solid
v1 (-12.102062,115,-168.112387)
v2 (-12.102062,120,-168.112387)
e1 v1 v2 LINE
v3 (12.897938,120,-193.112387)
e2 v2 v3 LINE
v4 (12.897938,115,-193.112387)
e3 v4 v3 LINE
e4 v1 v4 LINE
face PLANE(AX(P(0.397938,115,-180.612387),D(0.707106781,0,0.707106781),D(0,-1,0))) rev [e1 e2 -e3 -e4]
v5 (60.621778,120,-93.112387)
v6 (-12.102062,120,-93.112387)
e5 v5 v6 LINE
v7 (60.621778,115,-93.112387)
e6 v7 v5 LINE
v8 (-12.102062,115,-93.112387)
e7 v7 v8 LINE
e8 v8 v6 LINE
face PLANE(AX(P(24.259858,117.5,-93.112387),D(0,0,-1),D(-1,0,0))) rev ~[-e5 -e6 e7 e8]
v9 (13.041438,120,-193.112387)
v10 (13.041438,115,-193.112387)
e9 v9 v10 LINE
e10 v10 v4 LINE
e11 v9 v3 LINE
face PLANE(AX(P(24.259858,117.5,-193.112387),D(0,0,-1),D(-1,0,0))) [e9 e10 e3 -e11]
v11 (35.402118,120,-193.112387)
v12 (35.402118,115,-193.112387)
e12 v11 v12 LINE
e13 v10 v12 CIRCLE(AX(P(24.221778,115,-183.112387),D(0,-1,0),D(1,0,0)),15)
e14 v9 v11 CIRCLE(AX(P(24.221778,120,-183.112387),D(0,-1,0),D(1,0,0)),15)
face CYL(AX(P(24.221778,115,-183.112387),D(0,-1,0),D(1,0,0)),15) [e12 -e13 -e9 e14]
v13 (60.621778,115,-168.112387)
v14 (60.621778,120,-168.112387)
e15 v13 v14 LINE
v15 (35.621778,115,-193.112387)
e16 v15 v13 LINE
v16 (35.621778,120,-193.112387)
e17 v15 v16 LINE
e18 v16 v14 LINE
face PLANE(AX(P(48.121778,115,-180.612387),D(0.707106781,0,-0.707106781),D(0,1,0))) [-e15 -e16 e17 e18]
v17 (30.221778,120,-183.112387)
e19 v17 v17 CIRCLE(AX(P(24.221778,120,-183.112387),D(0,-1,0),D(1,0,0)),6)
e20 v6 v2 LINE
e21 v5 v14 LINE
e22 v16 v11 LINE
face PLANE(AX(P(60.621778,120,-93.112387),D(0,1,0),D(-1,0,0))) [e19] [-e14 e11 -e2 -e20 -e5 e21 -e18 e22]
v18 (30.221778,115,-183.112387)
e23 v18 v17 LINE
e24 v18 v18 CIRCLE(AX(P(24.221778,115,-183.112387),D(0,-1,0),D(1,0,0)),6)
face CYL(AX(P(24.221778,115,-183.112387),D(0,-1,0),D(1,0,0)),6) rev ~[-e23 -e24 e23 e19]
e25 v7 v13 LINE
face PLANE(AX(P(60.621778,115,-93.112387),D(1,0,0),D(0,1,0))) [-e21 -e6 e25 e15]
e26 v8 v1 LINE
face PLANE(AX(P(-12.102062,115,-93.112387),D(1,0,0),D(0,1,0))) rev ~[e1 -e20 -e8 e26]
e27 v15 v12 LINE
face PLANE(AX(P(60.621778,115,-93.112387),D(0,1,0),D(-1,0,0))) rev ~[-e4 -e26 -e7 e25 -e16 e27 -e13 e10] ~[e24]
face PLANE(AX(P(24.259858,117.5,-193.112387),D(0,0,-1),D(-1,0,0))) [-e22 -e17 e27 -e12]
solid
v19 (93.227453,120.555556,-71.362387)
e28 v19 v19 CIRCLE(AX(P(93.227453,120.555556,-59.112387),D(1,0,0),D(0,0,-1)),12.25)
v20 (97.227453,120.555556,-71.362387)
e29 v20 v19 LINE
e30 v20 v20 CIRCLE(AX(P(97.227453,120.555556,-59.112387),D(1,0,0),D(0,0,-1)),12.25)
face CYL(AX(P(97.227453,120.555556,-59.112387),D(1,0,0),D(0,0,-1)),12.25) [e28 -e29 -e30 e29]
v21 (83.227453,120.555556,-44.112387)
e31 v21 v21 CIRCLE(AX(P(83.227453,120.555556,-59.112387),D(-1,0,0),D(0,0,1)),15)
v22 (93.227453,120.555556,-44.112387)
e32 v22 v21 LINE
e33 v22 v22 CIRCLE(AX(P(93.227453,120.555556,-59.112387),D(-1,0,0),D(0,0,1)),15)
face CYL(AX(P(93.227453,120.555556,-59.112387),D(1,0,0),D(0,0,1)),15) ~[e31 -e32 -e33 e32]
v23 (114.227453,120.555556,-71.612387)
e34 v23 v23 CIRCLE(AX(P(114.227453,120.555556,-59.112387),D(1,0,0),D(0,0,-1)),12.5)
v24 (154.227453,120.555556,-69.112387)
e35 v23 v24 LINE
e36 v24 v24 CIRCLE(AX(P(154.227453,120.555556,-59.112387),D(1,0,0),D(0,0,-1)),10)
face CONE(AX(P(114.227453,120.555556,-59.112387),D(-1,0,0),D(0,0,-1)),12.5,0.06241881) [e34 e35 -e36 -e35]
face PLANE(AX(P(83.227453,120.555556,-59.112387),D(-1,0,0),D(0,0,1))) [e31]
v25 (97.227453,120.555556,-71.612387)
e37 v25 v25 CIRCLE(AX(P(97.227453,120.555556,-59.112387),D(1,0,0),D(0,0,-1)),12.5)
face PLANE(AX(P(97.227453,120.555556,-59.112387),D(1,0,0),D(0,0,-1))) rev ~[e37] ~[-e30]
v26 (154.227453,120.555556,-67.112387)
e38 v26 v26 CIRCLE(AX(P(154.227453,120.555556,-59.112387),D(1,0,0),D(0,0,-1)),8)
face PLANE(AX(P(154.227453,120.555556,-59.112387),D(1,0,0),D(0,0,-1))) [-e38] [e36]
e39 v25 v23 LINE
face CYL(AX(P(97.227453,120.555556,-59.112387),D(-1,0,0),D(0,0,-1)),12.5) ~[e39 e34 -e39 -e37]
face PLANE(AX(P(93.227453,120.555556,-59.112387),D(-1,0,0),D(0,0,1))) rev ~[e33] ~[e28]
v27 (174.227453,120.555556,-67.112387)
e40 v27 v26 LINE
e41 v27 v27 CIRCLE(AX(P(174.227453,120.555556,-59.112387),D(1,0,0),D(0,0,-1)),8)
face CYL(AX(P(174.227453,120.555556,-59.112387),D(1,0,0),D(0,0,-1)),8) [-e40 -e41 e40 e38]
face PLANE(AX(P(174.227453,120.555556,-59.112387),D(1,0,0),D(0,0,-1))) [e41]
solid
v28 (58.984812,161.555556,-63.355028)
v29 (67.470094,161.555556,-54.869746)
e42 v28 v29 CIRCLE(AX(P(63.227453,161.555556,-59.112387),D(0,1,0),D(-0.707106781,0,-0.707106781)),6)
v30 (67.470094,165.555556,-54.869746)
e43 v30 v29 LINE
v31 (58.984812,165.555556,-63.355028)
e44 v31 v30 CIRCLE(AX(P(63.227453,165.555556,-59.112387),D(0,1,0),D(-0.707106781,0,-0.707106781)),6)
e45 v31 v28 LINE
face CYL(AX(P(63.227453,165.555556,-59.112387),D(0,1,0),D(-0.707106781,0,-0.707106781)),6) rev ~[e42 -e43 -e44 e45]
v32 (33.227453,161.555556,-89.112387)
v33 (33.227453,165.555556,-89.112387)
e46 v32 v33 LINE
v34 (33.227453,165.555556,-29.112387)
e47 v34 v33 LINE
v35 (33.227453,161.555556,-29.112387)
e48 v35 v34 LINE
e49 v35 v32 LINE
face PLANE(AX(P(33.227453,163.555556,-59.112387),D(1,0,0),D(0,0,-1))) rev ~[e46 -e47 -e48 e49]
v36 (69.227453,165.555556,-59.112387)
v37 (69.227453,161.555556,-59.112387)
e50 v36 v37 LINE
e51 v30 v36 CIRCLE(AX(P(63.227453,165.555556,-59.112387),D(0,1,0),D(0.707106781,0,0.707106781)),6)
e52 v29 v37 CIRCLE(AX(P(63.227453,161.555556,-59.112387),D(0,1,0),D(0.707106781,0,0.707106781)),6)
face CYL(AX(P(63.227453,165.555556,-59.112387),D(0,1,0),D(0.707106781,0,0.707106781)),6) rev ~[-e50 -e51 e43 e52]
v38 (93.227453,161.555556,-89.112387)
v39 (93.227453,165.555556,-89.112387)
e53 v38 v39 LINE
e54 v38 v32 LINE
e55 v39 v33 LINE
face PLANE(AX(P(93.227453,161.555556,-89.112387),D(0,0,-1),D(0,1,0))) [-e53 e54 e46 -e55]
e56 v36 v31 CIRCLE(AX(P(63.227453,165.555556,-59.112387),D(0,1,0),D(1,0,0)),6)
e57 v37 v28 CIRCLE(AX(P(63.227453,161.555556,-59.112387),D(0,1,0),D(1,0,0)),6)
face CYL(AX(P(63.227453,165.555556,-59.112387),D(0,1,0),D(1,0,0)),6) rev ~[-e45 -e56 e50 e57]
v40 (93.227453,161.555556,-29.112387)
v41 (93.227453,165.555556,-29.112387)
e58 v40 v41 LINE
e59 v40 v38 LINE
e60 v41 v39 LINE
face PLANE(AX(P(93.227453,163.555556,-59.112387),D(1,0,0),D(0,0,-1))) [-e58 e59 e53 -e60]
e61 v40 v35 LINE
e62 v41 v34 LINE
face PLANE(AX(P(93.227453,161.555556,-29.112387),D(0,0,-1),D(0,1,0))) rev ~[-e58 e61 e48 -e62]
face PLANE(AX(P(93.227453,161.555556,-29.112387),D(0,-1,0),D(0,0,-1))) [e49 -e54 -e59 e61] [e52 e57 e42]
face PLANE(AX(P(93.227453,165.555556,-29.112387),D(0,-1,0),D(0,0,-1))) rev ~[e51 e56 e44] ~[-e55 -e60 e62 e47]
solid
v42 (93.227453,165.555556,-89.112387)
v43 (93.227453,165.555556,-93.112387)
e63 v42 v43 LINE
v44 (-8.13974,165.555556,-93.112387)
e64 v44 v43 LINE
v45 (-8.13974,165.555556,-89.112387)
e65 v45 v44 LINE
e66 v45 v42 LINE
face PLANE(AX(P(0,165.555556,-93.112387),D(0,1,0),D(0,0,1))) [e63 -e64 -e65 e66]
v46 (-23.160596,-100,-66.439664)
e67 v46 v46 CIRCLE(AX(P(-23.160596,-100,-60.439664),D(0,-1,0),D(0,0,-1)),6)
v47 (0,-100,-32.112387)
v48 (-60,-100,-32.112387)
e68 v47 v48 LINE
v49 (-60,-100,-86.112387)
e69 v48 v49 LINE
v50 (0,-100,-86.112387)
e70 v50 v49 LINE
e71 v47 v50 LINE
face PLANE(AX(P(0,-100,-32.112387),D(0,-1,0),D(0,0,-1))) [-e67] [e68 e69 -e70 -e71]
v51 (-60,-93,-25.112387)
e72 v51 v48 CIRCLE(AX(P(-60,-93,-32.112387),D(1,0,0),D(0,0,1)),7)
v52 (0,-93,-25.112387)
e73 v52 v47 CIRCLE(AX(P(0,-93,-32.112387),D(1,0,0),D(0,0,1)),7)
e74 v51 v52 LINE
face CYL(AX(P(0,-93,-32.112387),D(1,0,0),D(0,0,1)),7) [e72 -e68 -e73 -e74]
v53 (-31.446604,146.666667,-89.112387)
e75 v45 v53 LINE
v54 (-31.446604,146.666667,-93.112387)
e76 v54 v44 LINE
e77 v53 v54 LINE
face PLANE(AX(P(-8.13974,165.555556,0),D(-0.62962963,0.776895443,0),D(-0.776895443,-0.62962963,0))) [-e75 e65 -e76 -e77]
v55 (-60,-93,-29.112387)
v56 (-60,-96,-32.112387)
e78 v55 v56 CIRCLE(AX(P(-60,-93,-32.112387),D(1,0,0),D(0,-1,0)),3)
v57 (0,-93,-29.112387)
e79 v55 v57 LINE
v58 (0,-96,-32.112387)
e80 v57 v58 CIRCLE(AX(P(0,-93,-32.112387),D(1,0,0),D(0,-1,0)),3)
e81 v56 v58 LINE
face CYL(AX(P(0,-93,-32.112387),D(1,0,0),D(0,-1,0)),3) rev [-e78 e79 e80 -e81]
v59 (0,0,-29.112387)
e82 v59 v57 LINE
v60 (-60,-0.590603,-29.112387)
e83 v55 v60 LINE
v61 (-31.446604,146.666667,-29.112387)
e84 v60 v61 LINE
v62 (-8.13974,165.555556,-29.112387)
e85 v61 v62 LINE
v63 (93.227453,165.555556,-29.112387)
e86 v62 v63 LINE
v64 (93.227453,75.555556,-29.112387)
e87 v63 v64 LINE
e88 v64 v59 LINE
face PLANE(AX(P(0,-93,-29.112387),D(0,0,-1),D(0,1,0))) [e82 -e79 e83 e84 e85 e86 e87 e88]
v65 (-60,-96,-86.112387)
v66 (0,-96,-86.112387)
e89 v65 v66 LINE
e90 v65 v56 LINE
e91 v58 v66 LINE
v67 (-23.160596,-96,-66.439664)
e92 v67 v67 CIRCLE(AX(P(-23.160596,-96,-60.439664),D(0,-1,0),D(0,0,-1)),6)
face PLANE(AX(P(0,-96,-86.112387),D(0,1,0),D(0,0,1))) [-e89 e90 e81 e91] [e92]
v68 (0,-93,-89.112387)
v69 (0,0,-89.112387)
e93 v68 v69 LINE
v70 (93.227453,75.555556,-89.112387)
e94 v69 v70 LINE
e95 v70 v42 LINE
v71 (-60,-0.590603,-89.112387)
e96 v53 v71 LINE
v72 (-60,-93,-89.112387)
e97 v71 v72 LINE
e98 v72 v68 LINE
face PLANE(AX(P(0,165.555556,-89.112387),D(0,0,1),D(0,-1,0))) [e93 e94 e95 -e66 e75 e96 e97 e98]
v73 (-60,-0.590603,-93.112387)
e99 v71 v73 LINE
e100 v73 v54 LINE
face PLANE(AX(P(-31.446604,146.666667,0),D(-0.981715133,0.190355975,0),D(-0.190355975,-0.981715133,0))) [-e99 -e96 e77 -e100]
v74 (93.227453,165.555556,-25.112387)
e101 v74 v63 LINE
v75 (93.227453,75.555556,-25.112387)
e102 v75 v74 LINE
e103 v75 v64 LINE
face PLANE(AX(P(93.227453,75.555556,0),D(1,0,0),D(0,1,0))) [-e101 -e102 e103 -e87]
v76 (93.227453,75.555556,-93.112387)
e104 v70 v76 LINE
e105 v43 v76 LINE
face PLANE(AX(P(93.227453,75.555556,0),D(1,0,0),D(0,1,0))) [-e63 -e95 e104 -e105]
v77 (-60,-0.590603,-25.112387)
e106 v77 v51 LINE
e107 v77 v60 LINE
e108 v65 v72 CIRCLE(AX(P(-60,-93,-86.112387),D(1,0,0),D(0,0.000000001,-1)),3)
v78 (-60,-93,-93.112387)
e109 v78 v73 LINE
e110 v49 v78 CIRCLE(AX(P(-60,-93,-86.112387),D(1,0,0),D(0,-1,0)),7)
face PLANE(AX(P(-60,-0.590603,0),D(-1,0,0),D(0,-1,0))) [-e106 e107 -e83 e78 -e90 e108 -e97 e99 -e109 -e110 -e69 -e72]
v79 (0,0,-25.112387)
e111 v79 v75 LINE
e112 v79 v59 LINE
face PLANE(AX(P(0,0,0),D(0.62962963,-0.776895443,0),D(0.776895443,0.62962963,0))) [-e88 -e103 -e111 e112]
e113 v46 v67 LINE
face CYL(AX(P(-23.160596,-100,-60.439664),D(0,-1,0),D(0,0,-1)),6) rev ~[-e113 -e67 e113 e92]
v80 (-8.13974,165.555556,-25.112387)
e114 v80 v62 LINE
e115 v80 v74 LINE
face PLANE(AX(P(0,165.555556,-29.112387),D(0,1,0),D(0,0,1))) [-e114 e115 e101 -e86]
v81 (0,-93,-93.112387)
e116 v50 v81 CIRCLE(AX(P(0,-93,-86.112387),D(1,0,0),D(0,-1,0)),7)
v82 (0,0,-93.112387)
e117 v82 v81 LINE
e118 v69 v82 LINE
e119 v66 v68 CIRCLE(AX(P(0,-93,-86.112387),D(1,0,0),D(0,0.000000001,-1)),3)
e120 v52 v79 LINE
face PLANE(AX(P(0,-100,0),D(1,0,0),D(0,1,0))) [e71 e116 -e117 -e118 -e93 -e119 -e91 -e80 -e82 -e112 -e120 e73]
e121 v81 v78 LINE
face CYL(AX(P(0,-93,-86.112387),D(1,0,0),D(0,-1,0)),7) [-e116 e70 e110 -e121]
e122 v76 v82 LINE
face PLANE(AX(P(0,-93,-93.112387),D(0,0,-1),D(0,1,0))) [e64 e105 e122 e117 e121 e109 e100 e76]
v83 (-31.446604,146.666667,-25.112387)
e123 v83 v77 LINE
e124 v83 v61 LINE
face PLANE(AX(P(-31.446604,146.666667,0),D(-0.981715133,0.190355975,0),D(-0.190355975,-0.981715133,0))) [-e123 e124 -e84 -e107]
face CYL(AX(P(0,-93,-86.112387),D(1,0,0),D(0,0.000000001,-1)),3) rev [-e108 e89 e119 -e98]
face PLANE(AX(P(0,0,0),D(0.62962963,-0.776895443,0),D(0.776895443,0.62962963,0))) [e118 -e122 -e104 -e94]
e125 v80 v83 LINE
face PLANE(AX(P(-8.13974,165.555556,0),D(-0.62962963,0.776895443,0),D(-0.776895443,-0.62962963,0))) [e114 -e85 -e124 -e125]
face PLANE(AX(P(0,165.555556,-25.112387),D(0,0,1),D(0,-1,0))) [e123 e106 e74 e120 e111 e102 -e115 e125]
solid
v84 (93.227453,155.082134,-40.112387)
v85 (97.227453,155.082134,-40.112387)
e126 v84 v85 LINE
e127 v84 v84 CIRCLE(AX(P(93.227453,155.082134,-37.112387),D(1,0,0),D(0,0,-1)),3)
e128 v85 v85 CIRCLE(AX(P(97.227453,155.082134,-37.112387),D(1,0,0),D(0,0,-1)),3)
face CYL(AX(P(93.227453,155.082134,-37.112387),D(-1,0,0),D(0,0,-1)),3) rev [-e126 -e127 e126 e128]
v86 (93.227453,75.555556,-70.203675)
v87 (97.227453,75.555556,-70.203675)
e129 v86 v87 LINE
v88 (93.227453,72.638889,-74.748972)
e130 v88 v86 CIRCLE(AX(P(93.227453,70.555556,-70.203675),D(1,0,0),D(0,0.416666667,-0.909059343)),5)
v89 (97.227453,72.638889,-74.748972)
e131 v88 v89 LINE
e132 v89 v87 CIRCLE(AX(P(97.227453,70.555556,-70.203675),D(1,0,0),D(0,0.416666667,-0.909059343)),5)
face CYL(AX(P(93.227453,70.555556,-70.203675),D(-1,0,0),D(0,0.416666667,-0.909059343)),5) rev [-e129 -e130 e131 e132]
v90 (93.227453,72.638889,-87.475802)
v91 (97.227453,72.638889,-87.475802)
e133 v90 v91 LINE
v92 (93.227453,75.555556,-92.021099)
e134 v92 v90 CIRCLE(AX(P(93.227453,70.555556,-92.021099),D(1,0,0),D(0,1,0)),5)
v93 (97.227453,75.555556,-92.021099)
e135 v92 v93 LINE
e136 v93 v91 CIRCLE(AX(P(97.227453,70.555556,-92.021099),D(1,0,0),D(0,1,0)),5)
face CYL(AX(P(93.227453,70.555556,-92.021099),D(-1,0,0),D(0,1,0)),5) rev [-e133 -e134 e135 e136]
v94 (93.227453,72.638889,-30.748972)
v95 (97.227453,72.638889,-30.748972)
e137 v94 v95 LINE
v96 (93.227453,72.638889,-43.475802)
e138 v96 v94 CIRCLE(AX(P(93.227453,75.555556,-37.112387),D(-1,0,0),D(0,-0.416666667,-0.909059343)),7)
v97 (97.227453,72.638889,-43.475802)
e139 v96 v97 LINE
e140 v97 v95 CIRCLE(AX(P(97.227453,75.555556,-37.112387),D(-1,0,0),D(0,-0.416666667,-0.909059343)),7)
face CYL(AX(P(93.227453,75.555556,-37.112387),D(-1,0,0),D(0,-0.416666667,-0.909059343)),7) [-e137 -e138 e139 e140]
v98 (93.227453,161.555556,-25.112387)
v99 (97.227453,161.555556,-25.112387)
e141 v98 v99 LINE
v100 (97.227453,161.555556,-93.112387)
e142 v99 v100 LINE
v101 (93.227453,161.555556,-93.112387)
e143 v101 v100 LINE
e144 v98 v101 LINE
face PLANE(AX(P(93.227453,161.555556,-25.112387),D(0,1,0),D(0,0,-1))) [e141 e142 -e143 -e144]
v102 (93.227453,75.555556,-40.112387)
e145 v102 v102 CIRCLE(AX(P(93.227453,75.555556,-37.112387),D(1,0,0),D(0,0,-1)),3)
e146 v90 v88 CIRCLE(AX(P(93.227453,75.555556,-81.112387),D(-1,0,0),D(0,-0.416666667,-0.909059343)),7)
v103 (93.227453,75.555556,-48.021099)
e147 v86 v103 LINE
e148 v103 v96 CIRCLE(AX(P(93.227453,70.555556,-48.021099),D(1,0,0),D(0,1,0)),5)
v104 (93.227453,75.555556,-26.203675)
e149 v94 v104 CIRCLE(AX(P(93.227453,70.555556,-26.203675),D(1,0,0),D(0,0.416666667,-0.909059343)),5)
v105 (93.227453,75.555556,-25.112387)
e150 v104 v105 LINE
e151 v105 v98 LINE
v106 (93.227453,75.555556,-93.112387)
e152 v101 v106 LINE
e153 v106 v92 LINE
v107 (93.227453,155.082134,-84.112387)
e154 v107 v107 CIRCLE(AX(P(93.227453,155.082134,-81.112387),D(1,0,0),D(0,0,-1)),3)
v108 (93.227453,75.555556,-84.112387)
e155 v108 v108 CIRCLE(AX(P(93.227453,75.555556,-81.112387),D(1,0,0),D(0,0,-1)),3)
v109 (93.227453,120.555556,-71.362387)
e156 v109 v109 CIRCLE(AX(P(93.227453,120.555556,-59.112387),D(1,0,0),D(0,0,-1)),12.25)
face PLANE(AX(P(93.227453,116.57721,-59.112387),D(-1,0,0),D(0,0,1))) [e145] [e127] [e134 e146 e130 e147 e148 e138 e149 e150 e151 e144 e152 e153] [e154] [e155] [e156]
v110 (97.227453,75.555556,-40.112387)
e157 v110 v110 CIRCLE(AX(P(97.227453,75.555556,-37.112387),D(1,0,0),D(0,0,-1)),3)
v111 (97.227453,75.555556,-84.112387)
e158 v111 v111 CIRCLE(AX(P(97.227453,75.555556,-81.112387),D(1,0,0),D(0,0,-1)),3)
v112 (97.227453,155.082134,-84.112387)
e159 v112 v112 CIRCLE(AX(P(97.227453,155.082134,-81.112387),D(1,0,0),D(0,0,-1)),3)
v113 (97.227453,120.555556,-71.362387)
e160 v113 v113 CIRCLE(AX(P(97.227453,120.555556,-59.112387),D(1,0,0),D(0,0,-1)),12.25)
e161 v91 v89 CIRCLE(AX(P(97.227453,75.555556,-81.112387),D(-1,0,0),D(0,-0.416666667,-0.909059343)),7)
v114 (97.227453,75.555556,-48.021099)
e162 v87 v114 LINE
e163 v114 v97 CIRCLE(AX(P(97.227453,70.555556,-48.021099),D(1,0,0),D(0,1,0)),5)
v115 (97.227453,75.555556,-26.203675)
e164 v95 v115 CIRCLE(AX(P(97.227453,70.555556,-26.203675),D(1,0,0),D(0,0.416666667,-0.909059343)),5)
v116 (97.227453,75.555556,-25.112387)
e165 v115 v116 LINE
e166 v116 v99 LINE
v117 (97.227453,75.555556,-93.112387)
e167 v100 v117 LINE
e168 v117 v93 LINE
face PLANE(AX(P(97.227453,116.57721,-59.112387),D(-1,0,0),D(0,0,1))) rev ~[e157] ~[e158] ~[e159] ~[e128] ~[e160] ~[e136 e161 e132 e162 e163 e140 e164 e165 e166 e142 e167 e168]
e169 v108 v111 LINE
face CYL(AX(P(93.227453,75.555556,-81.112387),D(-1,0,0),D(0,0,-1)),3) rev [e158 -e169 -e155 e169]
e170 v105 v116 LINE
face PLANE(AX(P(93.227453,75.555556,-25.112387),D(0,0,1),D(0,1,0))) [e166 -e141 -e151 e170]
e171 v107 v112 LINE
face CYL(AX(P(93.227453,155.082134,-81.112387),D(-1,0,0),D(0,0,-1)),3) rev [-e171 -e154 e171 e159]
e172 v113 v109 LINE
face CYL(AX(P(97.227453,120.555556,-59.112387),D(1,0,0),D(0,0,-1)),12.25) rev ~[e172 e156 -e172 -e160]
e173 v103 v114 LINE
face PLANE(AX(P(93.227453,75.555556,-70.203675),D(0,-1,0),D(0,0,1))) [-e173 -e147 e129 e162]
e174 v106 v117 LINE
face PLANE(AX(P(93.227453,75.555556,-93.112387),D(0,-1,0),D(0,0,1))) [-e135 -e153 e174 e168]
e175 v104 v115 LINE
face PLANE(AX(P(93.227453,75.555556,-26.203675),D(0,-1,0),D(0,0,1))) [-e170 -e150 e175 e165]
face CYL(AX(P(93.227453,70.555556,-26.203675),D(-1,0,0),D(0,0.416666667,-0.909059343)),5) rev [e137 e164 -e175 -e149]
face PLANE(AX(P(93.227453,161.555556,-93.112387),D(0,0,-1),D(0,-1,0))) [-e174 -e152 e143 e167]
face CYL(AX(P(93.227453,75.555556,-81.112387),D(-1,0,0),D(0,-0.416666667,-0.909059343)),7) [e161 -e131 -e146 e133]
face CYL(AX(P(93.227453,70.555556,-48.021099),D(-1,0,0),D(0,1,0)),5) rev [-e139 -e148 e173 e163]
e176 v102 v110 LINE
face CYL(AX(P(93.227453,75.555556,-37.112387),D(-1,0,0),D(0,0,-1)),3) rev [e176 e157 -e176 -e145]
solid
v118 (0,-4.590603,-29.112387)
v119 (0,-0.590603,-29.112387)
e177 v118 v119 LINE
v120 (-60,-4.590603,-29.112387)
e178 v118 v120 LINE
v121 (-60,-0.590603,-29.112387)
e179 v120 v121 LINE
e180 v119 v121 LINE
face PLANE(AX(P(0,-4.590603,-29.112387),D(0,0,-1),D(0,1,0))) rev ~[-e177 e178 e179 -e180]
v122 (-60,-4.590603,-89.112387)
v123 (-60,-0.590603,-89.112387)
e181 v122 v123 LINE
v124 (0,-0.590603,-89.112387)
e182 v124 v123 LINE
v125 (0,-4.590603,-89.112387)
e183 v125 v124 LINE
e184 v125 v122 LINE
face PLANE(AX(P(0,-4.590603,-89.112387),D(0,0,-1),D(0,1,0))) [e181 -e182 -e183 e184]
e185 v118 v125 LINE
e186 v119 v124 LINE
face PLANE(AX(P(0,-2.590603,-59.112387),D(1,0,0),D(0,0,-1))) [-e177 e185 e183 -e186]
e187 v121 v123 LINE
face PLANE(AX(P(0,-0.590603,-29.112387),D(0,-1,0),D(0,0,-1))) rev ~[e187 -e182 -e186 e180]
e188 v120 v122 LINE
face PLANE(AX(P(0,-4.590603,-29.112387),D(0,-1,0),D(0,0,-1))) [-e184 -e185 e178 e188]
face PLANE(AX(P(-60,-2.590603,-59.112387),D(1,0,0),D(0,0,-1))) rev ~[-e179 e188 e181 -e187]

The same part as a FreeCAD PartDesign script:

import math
import FreeCAD as App
import Part
import Sketcher

V = App.Vector
Q = App.Units.Quantity


def edges_at(feature, points):
    """Names of the edges that pass closest to the given points."""
    edges = feature.Shape.Edges
    near = lambda p: min(range(len(edges)), key=lambda i: edges[i].distToShape(Part.Vertex(*p))[0])
    return sorted({f"Edge{near(p) + 1}" for p in points})


def add_polygon(sketch, points):
    """Adds a closed chain of lines whose ends are joined by coincident constraints."""
    first, n = sketch.GeometryCount, len(points)
    for a, b in zip(points, points[1:] + points[:1]):
        sketch.addGeometry(Part.LineSegment(App.Vector(*a, 0), App.Vector(*b, 0)), False)
    for i in range(n):
        sketch.addConstraint(Sketcher.Constraint("Coincident", first + i, 2, first + (i + 1) % n, 1))

doc = App.newDocument("Part")
body = doc.addObject("PartDesign::Body", "Body")

# Sketch on YZ plane
sketch1 = doc.addObject("Sketcher::SketchObject", "Sketch")
body.addObject(sketch1)
sketch1.AttachmentSupport = (doc.YZ_Plane, [""])
sketch1.MapMode = "FlatFace"
sketch1.addGeometry([
    Part.LineSegment(V(-93, -93.1, 0), V(165.6, -93.1, 0)),  # 0
    Part.LineSegment(V(165.6, -93.1, 0), V(165.6, -89.1, 0)),  # 1
    Part.LineSegment(V(165.6, -89.1, 0), V(-93, -89.1, 0)),  # 2
    Part.ArcOfCircle(Part.Circle(V(-93, -86.1, 0), V(0, 0, 1), 3), math.radians(180), math.radians(270)),  # 3
    Part.LineSegment(V(-96, -86.1, 0), V(-96, -32.1, 0)),  # 4
    Part.ArcOfCircle(Part.Circle(V(-93, -32.1, 0), V(0, 0, 1), 3), math.radians(90), math.radians(180)),  # 5
    Part.LineSegment(V(-93, -29.1, 0), V(165.6, -29.1, 0)),  # 6
    Part.LineSegment(V(165.6, -29.1, 0), V(165.6, -25.1, 0)),  # 7
    Part.LineSegment(V(165.6, -25.1, 0), V(-93, -25.1, 0)),  # 8
    Part.ArcOfCircle(Part.Circle(V(-93, -32.1, 0), V(0, 0, 1), 7), math.radians(90), math.radians(180)),  # 9
    Part.LineSegment(V(-100, -32.1, 0), V(-100, -86.1, 0)),  # 10
    Part.ArcOfCircle(Part.Circle(V(-93, -86.1, 0), V(0, 0, 1), 7), math.radians(180), math.radians(270)),  # 11
], False)
sketch1.addConstraint([
    Sketcher.Constraint("Coincident", 0, 2, 1, 1),
    Sketcher.Constraint("Coincident", 1, 2, 2, 1),
    Sketcher.Constraint("Tangent", 2, 2, 3, 2),
    Sketcher.Constraint("Tangent", 3, 1, 4, 1),
    Sketcher.Constraint("Tangent", 4, 2, 5, 2),
    Sketcher.Constraint("Tangent", 5, 1, 6, 1),
    Sketcher.Constraint("Coincident", 6, 2, 7, 1),
    Sketcher.Constraint("Coincident", 7, 2, 8, 1),
    Sketcher.Constraint("Tangent", 8, 2, 9, 1),
    Sketcher.Constraint("Tangent", 9, 2, 10, 1),
    Sketcher.Constraint("Tangent", 10, 2, 11, 1),
    Sketcher.Constraint("Tangent", 11, 2, 0, 1),
    Sketcher.Constraint("Horizontal", 0),
    Sketcher.Constraint("Vertical", 1),
    Sketcher.Constraint("Horizontal", 2),
    Sketcher.Constraint("Vertical", 4),
    Sketcher.Constraint("Horizontal", 6),
    Sketcher.Constraint("Vertical", 7),
    Sketcher.Constraint("Horizontal", 8),
    Sketcher.Constraint("Vertical", 10),
    Sketcher.Constraint("Coincident", 9, 3, 5, 3),
    Sketcher.Constraint("Coincident", 11, 3, 3, 3),
    Sketcher.Constraint("Equal", 3, 5),
    Sketcher.Constraint("Vertical", 1, 2, 6, 2),
    Sketcher.Constraint("Radius", 3, Q("3 mm")),
    Sketcher.Constraint("Radius", 9, Q("7 mm")),
    Sketcher.Constraint("DistanceY", 4, 1, 4, 2, Q("54 mm")),
    Sketcher.Constraint("DistanceX", 3, 3, -1, 1, Q("93 mm")),
    Sketcher.Constraint("DistanceX", 0, 1, 0, 2, Q("258.555556 mm")),
    Sketcher.Constraint("DistanceY", 3, 3, -1, 1, Q("86.112387 mm")),
])
pad1 = doc.addObject("PartDesign::Pad", "Pad")
body.addObject(pad1)
pad1.Profile = sketch1
pad1.Length = 214
pad1.Midplane = True

# Sketch on XY plane
sketch2 = doc.addObject("Sketcher::SketchObject", "Sketch001")
body.addObject(sketch2)
sketch2.AttachmentSupport = (doc.XY_Plane, [""])
sketch2.MapMode = "FlatFace"
add_polygon(sketch2, [(-190, 12), (-190, -230), (130, -230), (130, -62), (223, 14), (223, 296), (-54, 296), (-150, 218)])  # lines 0-7
add_polygon(sketch2, [(-60, -100), (-60, -1), (-31, 147), (-8, 166), (93, 166), (93, 76), (0, 0), (0, -100)])  # lines 8-15
sketch2.addConstraint([
    Sketcher.Constraint("Vertical", 0),
    Sketcher.Constraint("Horizontal", 1),
    Sketcher.Constraint("Vertical", 2),
    Sketcher.Constraint("Vertical", 4),
    Sketcher.Constraint("Horizontal", 5),
    Sketcher.Constraint("Vertical", 8),
    Sketcher.Constraint("Horizontal", 11),
    Sketcher.Constraint("Vertical", 12),
    Sketcher.Constraint("Vertical", 14),
    Sketcher.Constraint("Horizontal", 15),
    Sketcher.Constraint("Coincident", 13, 2, -1, 1),
    Sketcher.Constraint("Parallel", 3, 6),
    Sketcher.Constraint("Parallel", 7, 9),
    Sketcher.Constraint("Parallel", 6, 10),
    Sketcher.Constraint("Parallel", 10, 13),
    Sketcher.Constraint("Equal", 3, 13),
    Sketcher.Constraint("DistanceX", 1, 1, 1, 2, Q("320 mm")),
    Sketcher.Constraint("DistanceX", 15, 2, 15, 1, Q("60 mm")),
    Sketcher.Constraint("DistanceY", 12, 2, 12, 1, Q("90 mm")),
    Sketcher.Constraint("DistanceY", 14, 2, 14, 1, Q("100 mm")),
    Sketcher.Constraint("Distance", 3, Q("120 mm")),
    Sketcher.Constraint("Distance", 9, Q("150 mm")),
    Sketcher.Constraint("Distance", 10, Q("30 mm")),
    Sketcher.Constraint("DistanceX", 0, 2, -1, 1, Q("190 mm")),
    Sketcher.Constraint("DistanceY", 0, 2, -1, 1, Q("230 mm")),
    Sketcher.Constraint("DistanceY", 10, 2, 5, 2, Q("130 mm")),
    Sketcher.Constraint("DistanceY", 0, 2, 0, 1, Q("241.896699 mm")),
    Sketcher.Constraint("DistanceY", 2, 1, 2, 2, Q("168.024932 mm")),
    Sketcher.Constraint("DistanceX", 5, 2, 5, 1, Q("277.431723 mm")),
    Sketcher.Constraint("DistanceX", 11, 1, 11, 2, Q("101.367194 mm")),
    Sketcher.Constraint("DistanceY", 8, 1, 8, 2, Q("99.409397 mm")),
])
pocket1 = doc.addObject("PartDesign::Pocket", "Pocket")
body.addObject(pocket1)
pocket1.Profile = sketch2
pocket1.Length = 214

# Sketch on XZ plane
sketch3 = doc.addObject("Sketcher::SketchObject", "Sketch002")
body.addObject(sketch3)
sketch3.AttachmentSupport = (doc.XZ_Plane, [""])
sketch3.MapMode = "FlatFace"
sketch3.AttachmentOffset = App.Placement(V(0, 0, 100), App.Rotation())
sketch3.addGeometry(Part.Circle(V(-23, -60, 0), V(0, 0, 1), 6), False)
sketch3.addConstraint([
    Sketcher.Constraint("Diameter", 0, Q("12 mm")),
    Sketcher.Constraint("DistanceX", 0, 3, -1, 1, Q("23.160596 mm")),
    Sketcher.Constraint("DistanceY", 0, 3, -1, 1, Q("60.439664 mm")),
])
pocket2 = doc.addObject("PartDesign::Pocket", "Pocket001")
body.addObject(pocket2)
pocket2.Profile = sketch3
pocket2.Length = 10
body2 = doc.addObject("PartDesign::Body", "Body001")

# Sketch on YZ plane
sketch4 = doc.addObject("Sketcher::SketchObject", "Sketch003")
body2.addObject(sketch4)
sketch4.AttachmentSupport = (doc.getObject("YZ_Plane001"), [""])
sketch4.MapMode = "FlatFace"
add_polygon(sketch4, [(-0.6, -29.1), (-4.6, -29.1), (-4.6, -89.1), (-0.6, -89.1)])  # lines 0-3
sketch4.addConstraint([
    Sketcher.Constraint("Horizontal", 0),
    Sketcher.Constraint("Vertical", 1),
    Sketcher.Constraint("Horizontal", 2),
    Sketcher.Constraint("Vertical", 3),
    Sketcher.Constraint("DistanceX", 0, 2, 0, 1, Q("4 mm")),
    Sketcher.Constraint("DistanceY", 1, 2, 1, 1, Q("60 mm")),
    Sketcher.Constraint("DistanceX", 0, 2, -1, 1, Q("4.590603 mm")),
    Sketcher.Constraint("DistanceY", 0, 2, -1, 1, Q("29.112387 mm")),
])
pad2 = doc.addObject("PartDesign::Pad", "Pad001")
body2.addObject(pad2)
pad2.Profile = sketch4
pad2.Length = 60
pad2.Reversed = True
body3 = doc.addObject("PartDesign::Body", "Body002")

# Sketch on YZ plane
sketch5 = doc.addObject("Sketcher::SketchObject", "Sketch004")
body3.addObject(sketch5)
sketch5.AttachmentSupport = (doc.getObject("YZ_Plane002"), [""])
sketch5.MapMode = "FlatFace"
sketch5.AttachmentOffset = App.Placement(V(0, 0, 93.227453), App.Rotation())
add_polygon(sketch5, [(165.6, -29.1), (161.6, -29.1), (161.6, -89.1), (165.6, -89.1)])  # lines 0-3
sketch5.addConstraint([
    Sketcher.Constraint("Horizontal", 0),
    Sketcher.Constraint("Vertical", 1),
    Sketcher.Constraint("Horizontal", 2),
    Sketcher.Constraint("Vertical", 3),
    Sketcher.Constraint("DistanceX", 0, 2, 0, 1, Q("4 mm")),
    Sketcher.Constraint("DistanceY", 1, 2, 1, 1, Q("60 mm")),
    Sketcher.Constraint("DistanceX", -1, 1, 0, 2, Q("161.555556 mm")),
    Sketcher.Constraint("DistanceY", 0, 2, -1, 1, Q("29.112387 mm")),
])
pad3 = doc.addObject("PartDesign::Pad", "Pad002")
body3.addObject(pad3)
pad3.Profile = sketch5
pad3.Length = 60
pad3.Reversed = True

# Sketch on XZ plane
sketch6 = doc.addObject("Sketcher::SketchObject", "Sketch005")
body3.addObject(sketch6)
sketch6.AttachmentSupport = (doc.getObject("XZ_Plane002"), [""])
sketch6.MapMode = "FlatFace"
sketch6.AttachmentOffset = App.Placement(V(0, 0, -165.555556), App.Rotation())
sketch6.addGeometry([
    Part.ArcOfCircle(Part.Circle(V(63.2, -59.1, 0), V(0, 0, 1), 6), math.radians(-135), math.radians(0)),
    Part.ArcOfCircle(Part.Circle(V(63.2, -59.1, 0), V(0, 0, 1), 6), math.radians(45), math.radians(225)),
    Part.ArcOfCircle(Part.Circle(V(63.2, -59.1, 0), V(0, 0, 1), 6), math.radians(0), math.radians(45)),
], False)
sketch6.addConstraint([
    Sketcher.Constraint("Tangent", 0, 1, 1, 2),
    Sketcher.Constraint("Tangent", 1, 1, 2, 2),
    Sketcher.Constraint("Tangent", 2, 1, 0, 2),
    Sketcher.Constraint("Horizontal", 1, 3, 2, 1),
    Sketcher.Constraint("Radius", 0, Q("6 mm")),
    Sketcher.Constraint("DistanceX", 0, 1, 2, 3, Q("4.242641 mm")),
    Sketcher.Constraint("DistanceX", 0, 3, 1, 1, Q("4.242641 mm")),
    Sketcher.Constraint("DistanceX", -1, 1, 0, 3, Q("63.227453 mm")),
    Sketcher.Constraint("DistanceY", 0, 3, -1, 1, Q("59.112387 mm")),
])
pocket3 = doc.addObject("PartDesign::Pocket", "Pocket002")
body3.addObject(pocket3)
pocket3.Profile = sketch6
pocket3.Length = 8
pocket3.Reversed = True
body4 = doc.addObject("PartDesign::Body", "Body003")

# Sketch on YZ plane
sketch7 = doc.addObject("Sketcher::SketchObject", "Sketch006")
body4.addObject(sketch7)
sketch7.AttachmentSupport = (doc.getObject("YZ_Plane003"), [""])
sketch7.MapMode = "FlatFace"
sketch7.AttachmentOffset = App.Placement(V(0, 0, 93.227453), App.Rotation())
sketch7.addGeometry([
    Part.LineSegment(V(161.6, -93.1, 0), V(161.6, -25.1, 0)),  # 0
    Part.LineSegment(V(161.6, -25.1, 0), V(75.6, -25.1, 0)),  # 1
    Part.LineSegment(V(75.6, -25.1, 0), V(75.6, -26.2, 0)),  # 2
    Part.ArcOfCircle(Part.Circle(V(70.6, -26.2, 0), V(0, 0, 1), 5), math.radians(-65), math.radians(0)),  # 3
    Part.ArcOfCircle(Part.Circle(V(75.6, -37.1, 0), V(0, 0, 1), 7), math.radians(115), math.radians(245)),  # 4
    Part.ArcOfCircle(Part.Circle(V(70.6, -48, 0), V(0, 0, 1), 5), math.radians(0), math.radians(65)),  # 5
    Part.LineSegment(V(75.6, -48, 0), V(75.6, -70.2, 0)),  # 6
    Part.ArcOfCircle(Part.Circle(V(70.6, -70.2, 0), V(0, 0, 1), 5), math.radians(-65), math.radians(0)),  # 7
    Part.ArcOfCircle(Part.Circle(V(75.6, -81.1, 0), V(0, 0, 1), 7), math.radians(115), math.radians(245)),  # 8
    Part.ArcOfCircle(Part.Circle(V(70.6, -92, 0), V(0, 0, 1), 5), math.radians(0), math.radians(65)),  # 9
    Part.LineSegment(V(75.6, -92, 0), V(75.6, -93.1, 0)),  # 10
    Part.LineSegment(V(75.6, -93.1, 0), V(161.6, -93.1, 0)),  # 11
    Part.Circle(V(75.6, -81.1, 0), V(0, 0, 1), 3),  # 12
    Part.Circle(V(75.6, -37.1, 0), V(0, 0, 1), 3),  # 13
    Part.Circle(V(155.1, -81.1, 0), V(0, 0, 1), 3),  # 14
    Part.Circle(V(155.1, -37.1, 0), V(0, 0, 1), 3),  # 15
], False)
sketch7.addConstraint([
    Sketcher.Constraint("Coincident", 0, 2, 1, 1),
    Sketcher.Constraint("Coincident", 1, 2, 2, 1),
    Sketcher.Constraint("Tangent", 2, 2, 3, 2),
    Sketcher.Constraint("Tangent", 3, 1, 4, 1),
    Sketcher.Constraint("Tangent", 4, 2, 5, 2),
    Sketcher.Constraint("Tangent", 5, 1, 6, 1),
    Sketcher.Constraint("Tangent", 6, 2, 7, 2),
    Sketcher.Constraint("Tangent", 7, 1, 8, 1),
    Sketcher.Constraint("Tangent", 8, 2, 9, 2),
    Sketcher.Constraint("Tangent", 9, 1, 10, 1),
    Sketcher.Constraint("Coincident", 10, 2, 11, 1),
    Sketcher.Constraint("Coincident", 11, 2, 0, 1),
    Sketcher.Constraint("Vertical", 0),
    Sketcher.Constraint("Horizontal", 1),
    Sketcher.Constraint("Vertical", 2),
    Sketcher.Constraint("Vertical", 6),
    Sketcher.Constraint("Vertical", 10),
    Sketcher.Constraint("Horizontal", 11),
    Sketcher.Constraint("Coincident", 12, 3, 8, 3),
    Sketcher.Constraint("Coincident", 13, 3, 4, 3),
    Sketcher.Constraint("Equal", 3, 5),
    Sketcher.Constraint("Equal", 5, 7),
    Sketcher.Constraint("Equal", 4, 8),
    Sketcher.Constraint("Equal", 7, 9),
    Sketcher.Constraint("Equal", 12, 13),
    Sketcher.Constraint("Equal", 13, 14),
    Sketcher.Constraint("Equal", 14, 15),
    Sketcher.Constraint("Horizontal", 12, 3, 14, 3),
    Sketcher.Constraint("Horizontal", 13, 3, 15, 3),
    Sketcher.Constraint("Vertical", 3, 3, 5, 3),
    Sketcher.Constraint("Vertical", 4, 3, 8, 3),
    Sketcher.Constraint("Vertical", 7, 3, 9, 3),
    Sketcher.Constraint("Vertical", 14, 3, 15, 3),
    Sketcher.Constraint("Vertical", 13, 3, 1, 2),
    Sketcher.Constraint("Equal", 2, 10),
    Sketcher.Constraint("Diameter", 12, Q("6 mm")),
    Sketcher.Constraint("Radius", 3, Q("5 mm")),
    Sketcher.Constraint("Radius", 4, Q("7 mm")),
    Sketcher.Constraint("DistanceX", 1, 2, 1, 1, Q("86 mm")),
    Sketcher.Constraint("DistanceY", 0, 1, 0, 2, Q("68 mm")),
    Sketcher.Constraint("DistanceY", 7, 3, 3, 3, Q("44 mm")),
    Sketcher.Constraint("DistanceY", 5, 3, -1, 1, Q("48.021099 mm")),
    Sketcher.Constraint("DistanceX", -1, 1, 3, 1, Q("72.638889 mm")),
    Sketcher.Constraint("DistanceX", 8, 3, 14, 3, Q("79.526579 mm")),
])
pad4 = doc.addObject("PartDesign::Pad", "Pad003")
body4.addObject(pad4)
pad4.Profile = sketch7
pad4.Length = 4

# Sketch on YZ plane
sketch8 = doc.addObject("Sketcher::SketchObject", "Sketch007")
body4.addObject(sketch8)
sketch8.AttachmentSupport = (doc.getObject("YZ_Plane003"), [""])
sketch8.MapMode = "FlatFace"
sketch8.AttachmentOffset = App.Placement(V(0, 0, 97.227453), App.Rotation())
sketch8.addGeometry(Part.Circle(V(121, -59, 0), V(0, 0, 1), 12), False)
sketch8.addConstraint([
    Sketcher.Constraint("Diameter", 0, Q("24.5 mm")),
    Sketcher.Constraint("DistanceX", -1, 1, 0, 3, Q("120.555556 mm")),
    Sketcher.Constraint("DistanceY", 0, 3, -1, 1, Q("59.112387 mm")),
])
pocket4 = doc.addObject("PartDesign::Pocket", "Pocket003")
body4.addObject(pocket4)
pocket4.Profile = sketch8
pocket4.Length = 4
body5 = doc.addObject("PartDesign::Body", "Body004")

# Sketch on XY plane
sketch9 = doc.addObject("Sketcher::SketchObject", "Sketch008")
body5.addObject(sketch9)
sketch9.AttachmentSupport = (doc.getObject("XY_Plane004"), [""])
sketch9.MapMode = "FlatFace"
sketch9.AttachmentOffset = App.Placement(V(0, 0, -93.112387), App.Rotation())
add_polygon(sketch9, [(61, 120), (61, 115), (-12, 115), (-12, 120)])  # lines 0-3
sketch9.addConstraint([
    Sketcher.Constraint("Vertical", 0),
    Sketcher.Constraint("Horizontal", 1),
    Sketcher.Constraint("Vertical", 2),
    Sketcher.Constraint("Horizontal", 3),
    Sketcher.Constraint("DistanceY", 0, 2, 0, 1, Q("5 mm")),
    Sketcher.Constraint("DistanceY", -1, 1, 0, 2, Q("115 mm")),
    Sketcher.Constraint("DistanceX", 1, 2, 1, 1, Q("72.723841 mm")),
    Sketcher.Constraint("DistanceX", -1, 1, 0, 2, Q("60.621778 mm")),
])
pad5 = doc.addObject("PartDesign::Pad", "Pad004")
body5.addObject(pad5)
pad5.Profile = sketch9
pad5.Length = 100
pad5.Reversed = True
doc.recompute()

chamfer = doc.addObject("PartDesign::Chamfer", "Chamfer")
body5.addObject(chamfer)
chamfer.Base = (pad5, edges_at(pad5, [(-12.102, 117.5, -193.112)]))
chamfer.Size = 25
doc.recompute()

chamfer2 = doc.addObject("PartDesign::Chamfer", "Chamfer001")
body5.addObject(chamfer2)
chamfer2.Base = (chamfer, edges_at(chamfer, [(60.622, 117.5, -193.112)]))
chamfer2.Size = 25

# Sketch on XZ plane
sketch10 = doc.addObject("Sketcher::SketchObject", "Sketch009")
body5.addObject(sketch10)
sketch10.AttachmentSupport = (doc.getObject("XZ_Plane004"), [""])
sketch10.MapMode = "FlatFace"
sketch10.AttachmentOffset = App.Placement(V(0, 0, -115), App.Rotation())
sketch10.addGeometry(Part.Circle(V(24, -183, 0), V(0, 0, 1), 15), False)
sketch10.addConstraint([
    Sketcher.Constraint("Diameter", 0, Q("30 mm")),
    Sketcher.Constraint("DistanceX", -1, 1, 0, 3, Q("24.221778 mm")),
    Sketcher.Constraint("DistanceY", 0, 3, -1, 1, Q("183.112387 mm")),
])
pad6 = doc.addObject("PartDesign::Pad", "Pad005")
body5.addObject(pad6)
pad6.Profile = sketch10
pad6.Length = 5
pad6.Reversed = True

# Sketch on XZ plane
sketch11 = doc.addObject("Sketcher::SketchObject", "Sketch010")
body5.addObject(sketch11)
sketch11.AttachmentSupport = (doc.getObject("XZ_Plane004"), [""])
sketch11.MapMode = "FlatFace"
sketch11.AttachmentOffset = App.Placement(V(0, 0, -115), App.Rotation())
sketch11.addGeometry(Part.Circle(V(24, -183, 0), V(0, 0, 1), 6), False)
sketch11.addConstraint([
    Sketcher.Constraint("Diameter", 0, Q("12 mm")),
    Sketcher.Constraint("DistanceX", -1, 1, 0, 3, Q("24.221778 mm")),
    Sketcher.Constraint("DistanceY", 0, 3, -1, 1, Q("183.112387 mm")),
])
pocket5 = doc.addObject("PartDesign::Pocket", "Pocket004")
body5.addObject(pocket5)
pocket5.Profile = sketch11
pocket5.Length = 20
body6 = doc.addObject("PartDesign::Body", "Body005")

# Sketch on YZ plane
sketch12 = doc.addObject("Sketcher::SketchObject", "Sketch011")
body6.addObject(sketch12)
sketch12.AttachmentSupport = (doc.getObject("YZ_Plane005"), [""])
sketch12.MapMode = "FlatFace"
sketch12.AttachmentOffset = App.Placement(V(0, 0, 93.227453), App.Rotation())
sketch12.addGeometry(Part.Circle(V(121, -59, 0), V(0, 0, 1), 15), False)
sketch12.addConstraint([
    Sketcher.Constraint("Diameter", 0, Q("30 mm")),
    Sketcher.Constraint("DistanceX", -1, 1, 0, 3, Q("120.555556 mm")),
    Sketcher.Constraint("DistanceY", 0, 3, -1, 1, Q("59.112387 mm")),
])
pad7 = doc.addObject("PartDesign::Pad", "Pad006")
body6.addObject(pad7)
pad7.Profile = sketch12
pad7.Length = 10
pad7.Reversed = True
body7 = doc.addObject("PartDesign::Body", "Body006")

# Sketch on YZ plane
sketch13 = doc.addObject("Sketcher::SketchObject", "Sketch012")
body7.addObject(sketch13)
sketch13.AttachmentSupport = (doc.getObject("YZ_Plane006"), [""])
sketch13.MapMode = "FlatFace"
sketch13.AttachmentOffset = App.Placement(V(0, 0, 97.227453), App.Rotation())
sketch13.addGeometry(Part.Circle(V(121, -59, 0), V(0, 0, 1), 12), False)
sketch13.addConstraint([
    Sketcher.Constraint("Diameter", 0, Q("24.5 mm")),
    Sketcher.Constraint("DistanceX", -1, 1, 0, 3, Q("120.555556 mm")),
    Sketcher.Constraint("DistanceY", 0, 3, -1, 1, Q("59.112387 mm")),
])
pad8 = doc.addObject("PartDesign::Pad", "Pad007")
body7.addObject(pad8)
pad8.Profile = sketch13
pad8.Length = 10
pad8.Reversed = True
body8 = doc.addObject("PartDesign::Body", "Body007")

# Sketch on YZ plane
sketch14 = doc.addObject("Sketcher::SketchObject", "Sketch013")
body8.addObject(sketch14)
sketch14.AttachmentSupport = (doc.getObject("YZ_Plane007"), [""])
sketch14.MapMode = "FlatFace"
sketch14.AttachmentOffset = App.Placement(V(0, 0, 97.227453), App.Rotation())
sketch14.addGeometry(Part.Circle(V(121, -59, 0), V(0, 0, 1), 12), False)
sketch14.addConstraint([
    Sketcher.Constraint("Diameter", 0, Q("25 mm")),
    Sketcher.Constraint("DistanceX", -1, 1, 0, 3, Q("120.555556 mm")),
    Sketcher.Constraint("DistanceY", 0, 3, -1, 1, Q("59.112387 mm")),
])
pad9 = doc.addObject("PartDesign::Pad", "Pad008")
body8.addObject(pad9)
pad9.Profile = sketch14
pad9.Length = 77

# Sketch on YZ plane
sketch15 = doc.addObject("Sketcher::SketchObject", "Sketch014")
body8.addObject(sketch15)
sketch15.AttachmentSupport = (doc.getObject("YZ_Plane007"), [""])
sketch15.MapMode = "FlatFace"
sketch15.AttachmentOffset = App.Placement(V(0, 0, 174.227453), App.Rotation())
sketch15.addGeometry([
    Part.Circle(V(121, -59, 0), V(0, 0, 1), 12),
    Part.Circle(V(121, -59, 0), V(0, 0, 1), 8),
], False)
sketch15.addConstraint([
    Sketcher.Constraint("Coincident", 1, 3, 0, 3),
    Sketcher.Constraint("Diameter", 0, Q("25 mm")),
    Sketcher.Constraint("Diameter", 1, Q("16 mm")),
    Sketcher.Constraint("DistanceX", -1, 1, 0, 3, Q("120.555556 mm")),
    Sketcher.Constraint("DistanceY", 0, 3, -1, 1, Q("59.112387 mm")),
])
pocket6 = doc.addObject("PartDesign::Pocket", "Pocket005")
body8.addObject(pocket6)
pocket6.Profile = sketch15
pocket6.Length = 20
doc.recompute()

chamfer3 = doc.addObject("PartDesign::Chamfer", "Chamfer002")
body8.addObject(chamfer3)
chamfer3.Base = (pocket6, edges_at(pocket6, [(154.227, 120.556, -46.612)]))
chamfer3.ChamferType = "Two distances"
chamfer3.Size = 40
chamfer3.Size2 = 2.5
doc.recompute()

boolean = doc.addObject("PartDesign::Boolean", "Boolean")
body8.addObject(boolean)
boolean.Type = "Fuse"
boolean.addObjects([body7])
doc.recompute()

boolean2 = doc.addObject("PartDesign::Boolean", "Boolean001")
body8.addObject(boolean2)
boolean2.Type = "Fuse"
boolean2.addObjects([body6])

doc.recompute()
